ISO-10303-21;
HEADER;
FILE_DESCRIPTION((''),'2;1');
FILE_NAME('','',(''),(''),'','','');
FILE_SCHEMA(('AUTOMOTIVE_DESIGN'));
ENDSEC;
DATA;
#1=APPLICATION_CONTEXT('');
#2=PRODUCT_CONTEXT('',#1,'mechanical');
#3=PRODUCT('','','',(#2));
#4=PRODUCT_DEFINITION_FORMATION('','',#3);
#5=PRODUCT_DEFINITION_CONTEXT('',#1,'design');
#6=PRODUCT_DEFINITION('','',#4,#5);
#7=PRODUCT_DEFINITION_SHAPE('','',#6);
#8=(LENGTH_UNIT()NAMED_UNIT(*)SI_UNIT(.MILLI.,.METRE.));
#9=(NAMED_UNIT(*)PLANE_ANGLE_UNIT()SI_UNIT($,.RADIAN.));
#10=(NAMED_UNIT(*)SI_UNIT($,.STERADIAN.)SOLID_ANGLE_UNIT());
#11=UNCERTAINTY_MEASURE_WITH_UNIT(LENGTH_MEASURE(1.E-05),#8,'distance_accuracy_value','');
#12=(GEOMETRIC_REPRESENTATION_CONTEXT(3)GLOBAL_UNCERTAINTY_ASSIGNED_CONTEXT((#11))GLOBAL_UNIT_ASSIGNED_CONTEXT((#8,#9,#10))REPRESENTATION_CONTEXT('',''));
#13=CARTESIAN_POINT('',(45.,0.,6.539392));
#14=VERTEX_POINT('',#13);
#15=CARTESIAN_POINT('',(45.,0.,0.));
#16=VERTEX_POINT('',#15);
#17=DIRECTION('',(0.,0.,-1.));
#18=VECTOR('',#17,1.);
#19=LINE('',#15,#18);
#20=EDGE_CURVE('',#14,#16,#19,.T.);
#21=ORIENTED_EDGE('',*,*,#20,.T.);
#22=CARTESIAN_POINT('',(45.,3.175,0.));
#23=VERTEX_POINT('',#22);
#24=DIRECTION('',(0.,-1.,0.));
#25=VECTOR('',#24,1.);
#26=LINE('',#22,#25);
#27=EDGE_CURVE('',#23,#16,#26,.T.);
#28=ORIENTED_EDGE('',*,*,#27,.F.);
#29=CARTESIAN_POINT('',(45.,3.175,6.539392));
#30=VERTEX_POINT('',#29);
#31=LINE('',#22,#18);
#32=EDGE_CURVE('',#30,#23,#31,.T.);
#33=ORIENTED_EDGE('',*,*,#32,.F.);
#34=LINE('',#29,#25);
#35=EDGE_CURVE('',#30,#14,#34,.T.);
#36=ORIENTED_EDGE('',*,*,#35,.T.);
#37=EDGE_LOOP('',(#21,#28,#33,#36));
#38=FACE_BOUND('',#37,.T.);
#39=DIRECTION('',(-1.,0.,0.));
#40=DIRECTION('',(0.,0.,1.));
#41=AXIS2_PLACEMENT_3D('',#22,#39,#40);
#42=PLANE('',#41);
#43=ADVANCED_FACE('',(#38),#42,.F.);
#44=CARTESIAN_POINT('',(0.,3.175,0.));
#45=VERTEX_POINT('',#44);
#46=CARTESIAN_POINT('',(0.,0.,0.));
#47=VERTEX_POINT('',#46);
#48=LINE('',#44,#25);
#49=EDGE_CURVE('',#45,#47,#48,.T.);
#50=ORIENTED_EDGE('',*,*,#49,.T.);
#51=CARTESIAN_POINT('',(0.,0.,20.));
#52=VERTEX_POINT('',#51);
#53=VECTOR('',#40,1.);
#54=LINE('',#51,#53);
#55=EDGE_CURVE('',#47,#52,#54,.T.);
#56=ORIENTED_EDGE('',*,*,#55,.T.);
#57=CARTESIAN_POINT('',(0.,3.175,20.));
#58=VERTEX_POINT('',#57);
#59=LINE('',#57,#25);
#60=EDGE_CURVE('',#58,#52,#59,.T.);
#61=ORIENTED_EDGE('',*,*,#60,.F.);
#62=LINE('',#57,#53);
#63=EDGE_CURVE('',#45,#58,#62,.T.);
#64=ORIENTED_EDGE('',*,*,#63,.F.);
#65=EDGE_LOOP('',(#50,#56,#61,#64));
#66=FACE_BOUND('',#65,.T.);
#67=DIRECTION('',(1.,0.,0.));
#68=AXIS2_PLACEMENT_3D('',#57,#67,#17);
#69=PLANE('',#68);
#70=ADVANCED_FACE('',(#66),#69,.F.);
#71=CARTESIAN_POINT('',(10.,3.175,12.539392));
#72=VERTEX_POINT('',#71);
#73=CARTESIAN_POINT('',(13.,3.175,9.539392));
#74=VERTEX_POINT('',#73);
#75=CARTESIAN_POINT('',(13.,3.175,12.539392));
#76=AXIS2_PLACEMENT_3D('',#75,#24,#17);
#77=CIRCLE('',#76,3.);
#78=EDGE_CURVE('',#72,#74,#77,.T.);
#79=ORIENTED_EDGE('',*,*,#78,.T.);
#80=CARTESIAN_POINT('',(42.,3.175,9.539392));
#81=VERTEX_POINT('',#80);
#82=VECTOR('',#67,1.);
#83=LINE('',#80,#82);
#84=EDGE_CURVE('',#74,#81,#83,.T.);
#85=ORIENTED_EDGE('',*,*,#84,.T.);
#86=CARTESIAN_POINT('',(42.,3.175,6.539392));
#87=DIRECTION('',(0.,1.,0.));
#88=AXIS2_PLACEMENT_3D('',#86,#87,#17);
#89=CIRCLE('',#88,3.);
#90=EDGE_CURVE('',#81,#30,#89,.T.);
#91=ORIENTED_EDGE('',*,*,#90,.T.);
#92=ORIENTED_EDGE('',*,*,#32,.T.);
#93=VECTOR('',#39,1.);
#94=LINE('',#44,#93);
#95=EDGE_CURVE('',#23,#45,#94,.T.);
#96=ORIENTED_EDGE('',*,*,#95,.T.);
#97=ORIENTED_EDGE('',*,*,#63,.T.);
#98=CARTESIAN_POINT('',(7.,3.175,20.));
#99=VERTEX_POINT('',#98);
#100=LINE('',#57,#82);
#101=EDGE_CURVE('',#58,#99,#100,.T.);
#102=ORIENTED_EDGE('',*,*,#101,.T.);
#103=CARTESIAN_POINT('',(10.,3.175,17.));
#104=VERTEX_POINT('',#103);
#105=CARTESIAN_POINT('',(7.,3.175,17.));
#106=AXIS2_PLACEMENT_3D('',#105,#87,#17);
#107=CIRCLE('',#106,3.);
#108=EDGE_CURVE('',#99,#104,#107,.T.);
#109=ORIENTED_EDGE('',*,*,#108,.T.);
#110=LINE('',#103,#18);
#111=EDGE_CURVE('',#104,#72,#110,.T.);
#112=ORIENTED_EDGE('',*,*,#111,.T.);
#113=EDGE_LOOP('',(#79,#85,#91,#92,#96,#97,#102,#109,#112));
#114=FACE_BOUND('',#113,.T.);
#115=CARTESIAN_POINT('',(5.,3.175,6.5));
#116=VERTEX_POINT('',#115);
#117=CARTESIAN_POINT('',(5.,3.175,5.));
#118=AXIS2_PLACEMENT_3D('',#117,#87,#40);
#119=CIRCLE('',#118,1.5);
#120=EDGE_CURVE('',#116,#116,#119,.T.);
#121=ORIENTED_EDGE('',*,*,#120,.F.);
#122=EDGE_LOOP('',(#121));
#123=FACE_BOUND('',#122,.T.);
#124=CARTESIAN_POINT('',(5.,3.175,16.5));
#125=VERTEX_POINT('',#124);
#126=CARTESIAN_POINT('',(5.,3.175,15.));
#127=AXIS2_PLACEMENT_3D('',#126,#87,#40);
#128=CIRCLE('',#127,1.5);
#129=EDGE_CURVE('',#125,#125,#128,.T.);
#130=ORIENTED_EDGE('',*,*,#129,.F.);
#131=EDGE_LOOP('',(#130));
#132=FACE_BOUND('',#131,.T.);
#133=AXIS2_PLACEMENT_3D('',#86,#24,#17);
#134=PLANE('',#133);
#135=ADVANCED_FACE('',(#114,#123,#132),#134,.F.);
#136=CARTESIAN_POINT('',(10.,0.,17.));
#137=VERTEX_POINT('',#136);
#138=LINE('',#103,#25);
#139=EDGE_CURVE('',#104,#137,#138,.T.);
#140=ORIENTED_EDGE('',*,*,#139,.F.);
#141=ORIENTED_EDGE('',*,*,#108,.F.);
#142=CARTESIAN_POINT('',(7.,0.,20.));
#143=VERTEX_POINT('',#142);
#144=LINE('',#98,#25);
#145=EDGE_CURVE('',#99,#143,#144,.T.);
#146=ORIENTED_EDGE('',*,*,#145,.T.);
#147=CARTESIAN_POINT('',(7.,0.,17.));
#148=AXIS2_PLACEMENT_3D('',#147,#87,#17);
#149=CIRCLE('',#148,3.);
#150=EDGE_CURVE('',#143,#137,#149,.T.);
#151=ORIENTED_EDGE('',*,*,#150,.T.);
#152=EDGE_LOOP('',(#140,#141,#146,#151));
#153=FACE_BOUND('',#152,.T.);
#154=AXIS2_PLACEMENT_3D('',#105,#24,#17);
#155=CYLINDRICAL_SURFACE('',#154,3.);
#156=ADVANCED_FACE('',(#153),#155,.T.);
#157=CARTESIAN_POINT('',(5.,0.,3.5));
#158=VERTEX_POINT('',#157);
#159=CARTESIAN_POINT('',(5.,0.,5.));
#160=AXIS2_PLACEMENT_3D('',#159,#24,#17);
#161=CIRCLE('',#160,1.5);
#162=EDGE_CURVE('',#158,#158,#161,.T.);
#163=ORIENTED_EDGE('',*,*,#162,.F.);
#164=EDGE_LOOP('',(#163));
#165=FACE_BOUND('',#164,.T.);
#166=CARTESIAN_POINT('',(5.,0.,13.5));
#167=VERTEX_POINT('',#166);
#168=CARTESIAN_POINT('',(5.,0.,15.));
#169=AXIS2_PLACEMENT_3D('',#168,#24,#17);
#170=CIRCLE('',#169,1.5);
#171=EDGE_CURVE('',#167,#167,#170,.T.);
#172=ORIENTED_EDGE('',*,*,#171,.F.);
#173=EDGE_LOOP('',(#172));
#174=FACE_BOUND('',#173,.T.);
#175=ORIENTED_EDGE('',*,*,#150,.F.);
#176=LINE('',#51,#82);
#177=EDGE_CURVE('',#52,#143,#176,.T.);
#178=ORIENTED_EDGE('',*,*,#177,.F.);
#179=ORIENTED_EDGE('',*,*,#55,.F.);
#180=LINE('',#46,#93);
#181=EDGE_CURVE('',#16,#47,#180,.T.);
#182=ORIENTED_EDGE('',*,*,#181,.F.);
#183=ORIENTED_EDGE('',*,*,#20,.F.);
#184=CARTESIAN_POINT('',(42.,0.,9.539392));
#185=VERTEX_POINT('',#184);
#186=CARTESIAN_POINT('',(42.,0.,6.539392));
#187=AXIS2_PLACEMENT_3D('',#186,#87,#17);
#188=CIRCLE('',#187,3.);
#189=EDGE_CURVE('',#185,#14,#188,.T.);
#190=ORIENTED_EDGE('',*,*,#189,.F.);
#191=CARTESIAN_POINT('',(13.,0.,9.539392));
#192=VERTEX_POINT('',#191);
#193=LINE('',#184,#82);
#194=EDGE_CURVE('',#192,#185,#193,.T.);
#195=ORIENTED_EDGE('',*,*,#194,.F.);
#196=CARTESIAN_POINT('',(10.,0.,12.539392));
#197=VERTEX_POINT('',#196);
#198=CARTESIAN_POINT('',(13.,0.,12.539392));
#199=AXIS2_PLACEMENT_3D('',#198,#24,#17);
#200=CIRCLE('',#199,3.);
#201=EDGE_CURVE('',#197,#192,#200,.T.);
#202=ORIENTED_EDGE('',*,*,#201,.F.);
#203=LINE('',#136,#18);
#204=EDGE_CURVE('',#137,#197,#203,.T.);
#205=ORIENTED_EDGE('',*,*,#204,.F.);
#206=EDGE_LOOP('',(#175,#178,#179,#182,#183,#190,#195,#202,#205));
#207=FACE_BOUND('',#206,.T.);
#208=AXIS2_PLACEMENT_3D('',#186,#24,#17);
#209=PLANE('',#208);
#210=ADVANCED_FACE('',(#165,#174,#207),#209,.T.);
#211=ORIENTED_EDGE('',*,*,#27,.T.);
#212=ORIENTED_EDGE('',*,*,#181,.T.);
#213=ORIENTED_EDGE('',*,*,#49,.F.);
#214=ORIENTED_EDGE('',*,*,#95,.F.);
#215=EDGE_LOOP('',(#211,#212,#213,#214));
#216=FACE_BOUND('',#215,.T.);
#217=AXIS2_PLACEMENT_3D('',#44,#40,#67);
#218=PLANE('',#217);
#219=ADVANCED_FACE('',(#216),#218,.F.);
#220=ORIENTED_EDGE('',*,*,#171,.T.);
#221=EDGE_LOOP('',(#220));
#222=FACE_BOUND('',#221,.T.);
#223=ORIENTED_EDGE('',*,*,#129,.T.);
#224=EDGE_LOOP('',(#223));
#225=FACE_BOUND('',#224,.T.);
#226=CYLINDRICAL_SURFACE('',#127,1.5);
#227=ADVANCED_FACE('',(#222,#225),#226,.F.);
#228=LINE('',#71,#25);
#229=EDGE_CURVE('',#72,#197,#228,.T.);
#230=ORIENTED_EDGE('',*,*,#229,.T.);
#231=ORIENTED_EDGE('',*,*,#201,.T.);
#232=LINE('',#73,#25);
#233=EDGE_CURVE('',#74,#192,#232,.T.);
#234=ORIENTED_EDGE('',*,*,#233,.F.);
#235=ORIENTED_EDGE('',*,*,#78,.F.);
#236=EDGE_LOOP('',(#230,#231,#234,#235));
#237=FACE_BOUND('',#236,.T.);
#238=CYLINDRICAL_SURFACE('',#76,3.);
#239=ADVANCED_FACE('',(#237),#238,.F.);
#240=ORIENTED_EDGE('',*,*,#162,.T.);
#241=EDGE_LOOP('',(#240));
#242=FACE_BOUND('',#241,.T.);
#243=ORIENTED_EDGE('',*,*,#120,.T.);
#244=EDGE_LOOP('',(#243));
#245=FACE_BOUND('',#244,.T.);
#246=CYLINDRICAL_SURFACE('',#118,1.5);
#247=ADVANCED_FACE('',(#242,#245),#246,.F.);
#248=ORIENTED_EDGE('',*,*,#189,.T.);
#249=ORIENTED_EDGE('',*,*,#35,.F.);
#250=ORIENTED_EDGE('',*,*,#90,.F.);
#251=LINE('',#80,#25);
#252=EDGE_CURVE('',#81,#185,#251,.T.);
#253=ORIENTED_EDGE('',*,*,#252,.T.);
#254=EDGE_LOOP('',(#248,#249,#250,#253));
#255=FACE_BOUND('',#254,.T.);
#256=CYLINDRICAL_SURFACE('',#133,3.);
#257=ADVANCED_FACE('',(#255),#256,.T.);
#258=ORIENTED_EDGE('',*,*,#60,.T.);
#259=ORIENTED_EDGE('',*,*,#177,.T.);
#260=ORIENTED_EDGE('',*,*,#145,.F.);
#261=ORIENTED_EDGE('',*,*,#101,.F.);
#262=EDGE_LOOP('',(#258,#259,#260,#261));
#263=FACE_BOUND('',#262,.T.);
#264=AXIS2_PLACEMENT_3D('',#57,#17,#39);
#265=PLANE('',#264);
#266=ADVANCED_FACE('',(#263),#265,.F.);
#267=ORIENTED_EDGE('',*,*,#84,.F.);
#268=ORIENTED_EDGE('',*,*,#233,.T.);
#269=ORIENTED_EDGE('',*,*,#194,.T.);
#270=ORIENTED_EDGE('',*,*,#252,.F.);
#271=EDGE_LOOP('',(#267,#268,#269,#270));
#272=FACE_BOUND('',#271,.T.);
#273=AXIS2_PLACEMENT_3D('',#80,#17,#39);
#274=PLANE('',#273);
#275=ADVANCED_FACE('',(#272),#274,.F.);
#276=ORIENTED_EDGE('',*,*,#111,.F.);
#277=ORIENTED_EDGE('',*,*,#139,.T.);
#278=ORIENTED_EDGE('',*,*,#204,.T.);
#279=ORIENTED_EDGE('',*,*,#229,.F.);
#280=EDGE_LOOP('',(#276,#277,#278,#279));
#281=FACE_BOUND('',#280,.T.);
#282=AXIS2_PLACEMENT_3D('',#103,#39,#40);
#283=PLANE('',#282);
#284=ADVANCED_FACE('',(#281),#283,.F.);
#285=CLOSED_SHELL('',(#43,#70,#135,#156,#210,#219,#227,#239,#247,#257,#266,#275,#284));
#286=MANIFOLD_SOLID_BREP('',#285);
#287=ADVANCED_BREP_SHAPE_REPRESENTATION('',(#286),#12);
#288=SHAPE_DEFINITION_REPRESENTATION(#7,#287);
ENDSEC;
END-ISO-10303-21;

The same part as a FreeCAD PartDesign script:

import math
import FreeCAD as App
import Part
import Sketcher
Q = App.Units.Quantity

doc = App.newDocument("Part")
body = doc.addObject("PartDesign::Body", "Body")

# Sketch on XZ plane
sketch1 = doc.addObject("Sketcher::SketchObject", "Sketch")
body.addObject(sketch1)
sketch1.AttachmentSupport = (doc.XZ_Plane, [""])
sketch1.MapMode = "FlatFace"
sketch1.addGeometry([
    Part.LineSegment(App.Vector(45, 0, 0), App.Vector(0, 0, 0)),  # 0
    Part.LineSegment(App.Vector(0, 0, 0), App.Vector(0, 20, 0)),  # 1
    Part.LineSegment(App.Vector(0, 20, 0), App.Vector(7, 20, 0)),  # 2
    Part.ArcOfCircle(Part.Circle(App.Vector(7, 17, 0), App.Vector(0, 0, 1), 3), math.radians(0), math.radians(90)),  # 3
    Part.LineSegment(App.Vector(10, 17, 0), App.Vector(10, 12.5, 0)),  # 4
    Part.ArcOfCircle(Part.Circle(App.Vector(13, 12.5, 0), App.Vector(0, 0, 1), 3), math.radians(180), math.radians(270)),  # 5
    Part.LineSegment(App.Vector(13, 9.5, 0), App.Vector(42, 9.5, 0)),  # 6
    Part.ArcOfCircle(Part.Circle(App.Vector(42, 6.5, 0), App.Vector(0, 0, 1), 3), math.radians(0), math.radians(90)),  # 7
    Part.LineSegment(App.Vector(45, 6.5, 0), App.Vector(45, 0, 0)),  # 8
], False)
sketch1.addConstraint([
    Sketcher.Constraint("Coincident", 0, 2, 1, 1),
    Sketcher.Constraint("Coincident", 1, 2, 2, 1),
    Sketcher.Constraint("Tangent", 2, 2, 3, 2),
    Sketcher.Constraint("Tangent", 3, 1, 4, 1),
    Sketcher.Constraint("Tangent", 4, 2, 5, 1),
    Sketcher.Constraint("Tangent", 5, 2, 6, 1),
    Sketcher.Constraint("Tangent", 6, 2, 7, 2),
    Sketcher.Constraint("Tangent", 7, 1, 8, 1),
    Sketcher.Constraint("Coincident", 8, 2, 0, 1),
    Sketcher.Constraint("Horizontal", 0),
    Sketcher.Constraint("Vertical", 1),
    Sketcher.Constraint("Horizontal", 2),
    Sketcher.Constraint("Vertical", 4),
    Sketcher.Constraint("Horizontal", 6),
    Sketcher.Constraint("Vertical", 8),
    Sketcher.Constraint("Coincident", 0, 2, -1, 1),
    Sketcher.Constraint("Equal", 3, 5),
    Sketcher.Constraint("Equal", 5, 7),
    Sketcher.Constraint("Radius", 3, Q("3 mm")),
    Sketcher.Constraint("DistanceX", 0, 2, 0, 1, Q("45 mm")),
    Sketcher.Constraint("DistanceX", 2, 1, 2, 2, Q("7 mm")),
    Sketcher.Constraint("DistanceY", 1, 1, 1, 2, Q("20 mm")),
    Sketcher.Constraint("DistanceY", 4, 2, 4, 1, Q("4.460608 mm")),
])
pad1 = doc.addObject("PartDesign::Pad", "Pad")
body.addObject(pad1)
pad1.Profile = sketch1
pad1.Length = 3.175
pad1.Reversed = True

# Sketch on XZ plane
sketch2 = doc.addObject("Sketcher::SketchObject", "Sketch001")
body.addObject(sketch2)
sketch2.AttachmentSupport = (doc.XZ_Plane, [""])
sketch2.MapMode = "FlatFace"
sketch2.AttachmentOffset = App.Placement(App.Vector(0, 0, -3.175), App.Rotation())
sketch2.addGeometry([
    Part.Circle(App.Vector(5, 5, 0), App.Vector(0, 0, 1), 1.5),
    Part.Circle(App.Vector(5, 15, 0), App.Vector(0, 0, 1), 1.5),
], False)
sketch2.addConstraint([
    Sketcher.Constraint("Equal", 0, 1),
    Sketcher.Constraint("Vertical", 0, 3, 1, 3),
    Sketcher.Constraint("Diameter", 0, Q("3 mm")),
    Sketcher.Constraint("DistanceX", -1, 1, 0, 3, Q("5 mm")),
    Sketcher.Constraint("DistanceY", -1, 1, 0, 3, Q("5 mm")),
    Sketcher.Constraint("DistanceY", -1, 1, 1, 3, Q("15 mm")),
])
doc.recompute()
hole = doc.addObject("PartDesign::Hole", "Hole")
body.addObject(hole)
hole.Profile = sketch2
hole.ThreadType = "None"
hole.Diameter = 3
hole.DepthType = "Dimension"
hole.Depth = 10
hole.DrillPoint = "Angled"
hole.DrillPointAngle = 118
hole.Reversed = True

doc.recompute()
